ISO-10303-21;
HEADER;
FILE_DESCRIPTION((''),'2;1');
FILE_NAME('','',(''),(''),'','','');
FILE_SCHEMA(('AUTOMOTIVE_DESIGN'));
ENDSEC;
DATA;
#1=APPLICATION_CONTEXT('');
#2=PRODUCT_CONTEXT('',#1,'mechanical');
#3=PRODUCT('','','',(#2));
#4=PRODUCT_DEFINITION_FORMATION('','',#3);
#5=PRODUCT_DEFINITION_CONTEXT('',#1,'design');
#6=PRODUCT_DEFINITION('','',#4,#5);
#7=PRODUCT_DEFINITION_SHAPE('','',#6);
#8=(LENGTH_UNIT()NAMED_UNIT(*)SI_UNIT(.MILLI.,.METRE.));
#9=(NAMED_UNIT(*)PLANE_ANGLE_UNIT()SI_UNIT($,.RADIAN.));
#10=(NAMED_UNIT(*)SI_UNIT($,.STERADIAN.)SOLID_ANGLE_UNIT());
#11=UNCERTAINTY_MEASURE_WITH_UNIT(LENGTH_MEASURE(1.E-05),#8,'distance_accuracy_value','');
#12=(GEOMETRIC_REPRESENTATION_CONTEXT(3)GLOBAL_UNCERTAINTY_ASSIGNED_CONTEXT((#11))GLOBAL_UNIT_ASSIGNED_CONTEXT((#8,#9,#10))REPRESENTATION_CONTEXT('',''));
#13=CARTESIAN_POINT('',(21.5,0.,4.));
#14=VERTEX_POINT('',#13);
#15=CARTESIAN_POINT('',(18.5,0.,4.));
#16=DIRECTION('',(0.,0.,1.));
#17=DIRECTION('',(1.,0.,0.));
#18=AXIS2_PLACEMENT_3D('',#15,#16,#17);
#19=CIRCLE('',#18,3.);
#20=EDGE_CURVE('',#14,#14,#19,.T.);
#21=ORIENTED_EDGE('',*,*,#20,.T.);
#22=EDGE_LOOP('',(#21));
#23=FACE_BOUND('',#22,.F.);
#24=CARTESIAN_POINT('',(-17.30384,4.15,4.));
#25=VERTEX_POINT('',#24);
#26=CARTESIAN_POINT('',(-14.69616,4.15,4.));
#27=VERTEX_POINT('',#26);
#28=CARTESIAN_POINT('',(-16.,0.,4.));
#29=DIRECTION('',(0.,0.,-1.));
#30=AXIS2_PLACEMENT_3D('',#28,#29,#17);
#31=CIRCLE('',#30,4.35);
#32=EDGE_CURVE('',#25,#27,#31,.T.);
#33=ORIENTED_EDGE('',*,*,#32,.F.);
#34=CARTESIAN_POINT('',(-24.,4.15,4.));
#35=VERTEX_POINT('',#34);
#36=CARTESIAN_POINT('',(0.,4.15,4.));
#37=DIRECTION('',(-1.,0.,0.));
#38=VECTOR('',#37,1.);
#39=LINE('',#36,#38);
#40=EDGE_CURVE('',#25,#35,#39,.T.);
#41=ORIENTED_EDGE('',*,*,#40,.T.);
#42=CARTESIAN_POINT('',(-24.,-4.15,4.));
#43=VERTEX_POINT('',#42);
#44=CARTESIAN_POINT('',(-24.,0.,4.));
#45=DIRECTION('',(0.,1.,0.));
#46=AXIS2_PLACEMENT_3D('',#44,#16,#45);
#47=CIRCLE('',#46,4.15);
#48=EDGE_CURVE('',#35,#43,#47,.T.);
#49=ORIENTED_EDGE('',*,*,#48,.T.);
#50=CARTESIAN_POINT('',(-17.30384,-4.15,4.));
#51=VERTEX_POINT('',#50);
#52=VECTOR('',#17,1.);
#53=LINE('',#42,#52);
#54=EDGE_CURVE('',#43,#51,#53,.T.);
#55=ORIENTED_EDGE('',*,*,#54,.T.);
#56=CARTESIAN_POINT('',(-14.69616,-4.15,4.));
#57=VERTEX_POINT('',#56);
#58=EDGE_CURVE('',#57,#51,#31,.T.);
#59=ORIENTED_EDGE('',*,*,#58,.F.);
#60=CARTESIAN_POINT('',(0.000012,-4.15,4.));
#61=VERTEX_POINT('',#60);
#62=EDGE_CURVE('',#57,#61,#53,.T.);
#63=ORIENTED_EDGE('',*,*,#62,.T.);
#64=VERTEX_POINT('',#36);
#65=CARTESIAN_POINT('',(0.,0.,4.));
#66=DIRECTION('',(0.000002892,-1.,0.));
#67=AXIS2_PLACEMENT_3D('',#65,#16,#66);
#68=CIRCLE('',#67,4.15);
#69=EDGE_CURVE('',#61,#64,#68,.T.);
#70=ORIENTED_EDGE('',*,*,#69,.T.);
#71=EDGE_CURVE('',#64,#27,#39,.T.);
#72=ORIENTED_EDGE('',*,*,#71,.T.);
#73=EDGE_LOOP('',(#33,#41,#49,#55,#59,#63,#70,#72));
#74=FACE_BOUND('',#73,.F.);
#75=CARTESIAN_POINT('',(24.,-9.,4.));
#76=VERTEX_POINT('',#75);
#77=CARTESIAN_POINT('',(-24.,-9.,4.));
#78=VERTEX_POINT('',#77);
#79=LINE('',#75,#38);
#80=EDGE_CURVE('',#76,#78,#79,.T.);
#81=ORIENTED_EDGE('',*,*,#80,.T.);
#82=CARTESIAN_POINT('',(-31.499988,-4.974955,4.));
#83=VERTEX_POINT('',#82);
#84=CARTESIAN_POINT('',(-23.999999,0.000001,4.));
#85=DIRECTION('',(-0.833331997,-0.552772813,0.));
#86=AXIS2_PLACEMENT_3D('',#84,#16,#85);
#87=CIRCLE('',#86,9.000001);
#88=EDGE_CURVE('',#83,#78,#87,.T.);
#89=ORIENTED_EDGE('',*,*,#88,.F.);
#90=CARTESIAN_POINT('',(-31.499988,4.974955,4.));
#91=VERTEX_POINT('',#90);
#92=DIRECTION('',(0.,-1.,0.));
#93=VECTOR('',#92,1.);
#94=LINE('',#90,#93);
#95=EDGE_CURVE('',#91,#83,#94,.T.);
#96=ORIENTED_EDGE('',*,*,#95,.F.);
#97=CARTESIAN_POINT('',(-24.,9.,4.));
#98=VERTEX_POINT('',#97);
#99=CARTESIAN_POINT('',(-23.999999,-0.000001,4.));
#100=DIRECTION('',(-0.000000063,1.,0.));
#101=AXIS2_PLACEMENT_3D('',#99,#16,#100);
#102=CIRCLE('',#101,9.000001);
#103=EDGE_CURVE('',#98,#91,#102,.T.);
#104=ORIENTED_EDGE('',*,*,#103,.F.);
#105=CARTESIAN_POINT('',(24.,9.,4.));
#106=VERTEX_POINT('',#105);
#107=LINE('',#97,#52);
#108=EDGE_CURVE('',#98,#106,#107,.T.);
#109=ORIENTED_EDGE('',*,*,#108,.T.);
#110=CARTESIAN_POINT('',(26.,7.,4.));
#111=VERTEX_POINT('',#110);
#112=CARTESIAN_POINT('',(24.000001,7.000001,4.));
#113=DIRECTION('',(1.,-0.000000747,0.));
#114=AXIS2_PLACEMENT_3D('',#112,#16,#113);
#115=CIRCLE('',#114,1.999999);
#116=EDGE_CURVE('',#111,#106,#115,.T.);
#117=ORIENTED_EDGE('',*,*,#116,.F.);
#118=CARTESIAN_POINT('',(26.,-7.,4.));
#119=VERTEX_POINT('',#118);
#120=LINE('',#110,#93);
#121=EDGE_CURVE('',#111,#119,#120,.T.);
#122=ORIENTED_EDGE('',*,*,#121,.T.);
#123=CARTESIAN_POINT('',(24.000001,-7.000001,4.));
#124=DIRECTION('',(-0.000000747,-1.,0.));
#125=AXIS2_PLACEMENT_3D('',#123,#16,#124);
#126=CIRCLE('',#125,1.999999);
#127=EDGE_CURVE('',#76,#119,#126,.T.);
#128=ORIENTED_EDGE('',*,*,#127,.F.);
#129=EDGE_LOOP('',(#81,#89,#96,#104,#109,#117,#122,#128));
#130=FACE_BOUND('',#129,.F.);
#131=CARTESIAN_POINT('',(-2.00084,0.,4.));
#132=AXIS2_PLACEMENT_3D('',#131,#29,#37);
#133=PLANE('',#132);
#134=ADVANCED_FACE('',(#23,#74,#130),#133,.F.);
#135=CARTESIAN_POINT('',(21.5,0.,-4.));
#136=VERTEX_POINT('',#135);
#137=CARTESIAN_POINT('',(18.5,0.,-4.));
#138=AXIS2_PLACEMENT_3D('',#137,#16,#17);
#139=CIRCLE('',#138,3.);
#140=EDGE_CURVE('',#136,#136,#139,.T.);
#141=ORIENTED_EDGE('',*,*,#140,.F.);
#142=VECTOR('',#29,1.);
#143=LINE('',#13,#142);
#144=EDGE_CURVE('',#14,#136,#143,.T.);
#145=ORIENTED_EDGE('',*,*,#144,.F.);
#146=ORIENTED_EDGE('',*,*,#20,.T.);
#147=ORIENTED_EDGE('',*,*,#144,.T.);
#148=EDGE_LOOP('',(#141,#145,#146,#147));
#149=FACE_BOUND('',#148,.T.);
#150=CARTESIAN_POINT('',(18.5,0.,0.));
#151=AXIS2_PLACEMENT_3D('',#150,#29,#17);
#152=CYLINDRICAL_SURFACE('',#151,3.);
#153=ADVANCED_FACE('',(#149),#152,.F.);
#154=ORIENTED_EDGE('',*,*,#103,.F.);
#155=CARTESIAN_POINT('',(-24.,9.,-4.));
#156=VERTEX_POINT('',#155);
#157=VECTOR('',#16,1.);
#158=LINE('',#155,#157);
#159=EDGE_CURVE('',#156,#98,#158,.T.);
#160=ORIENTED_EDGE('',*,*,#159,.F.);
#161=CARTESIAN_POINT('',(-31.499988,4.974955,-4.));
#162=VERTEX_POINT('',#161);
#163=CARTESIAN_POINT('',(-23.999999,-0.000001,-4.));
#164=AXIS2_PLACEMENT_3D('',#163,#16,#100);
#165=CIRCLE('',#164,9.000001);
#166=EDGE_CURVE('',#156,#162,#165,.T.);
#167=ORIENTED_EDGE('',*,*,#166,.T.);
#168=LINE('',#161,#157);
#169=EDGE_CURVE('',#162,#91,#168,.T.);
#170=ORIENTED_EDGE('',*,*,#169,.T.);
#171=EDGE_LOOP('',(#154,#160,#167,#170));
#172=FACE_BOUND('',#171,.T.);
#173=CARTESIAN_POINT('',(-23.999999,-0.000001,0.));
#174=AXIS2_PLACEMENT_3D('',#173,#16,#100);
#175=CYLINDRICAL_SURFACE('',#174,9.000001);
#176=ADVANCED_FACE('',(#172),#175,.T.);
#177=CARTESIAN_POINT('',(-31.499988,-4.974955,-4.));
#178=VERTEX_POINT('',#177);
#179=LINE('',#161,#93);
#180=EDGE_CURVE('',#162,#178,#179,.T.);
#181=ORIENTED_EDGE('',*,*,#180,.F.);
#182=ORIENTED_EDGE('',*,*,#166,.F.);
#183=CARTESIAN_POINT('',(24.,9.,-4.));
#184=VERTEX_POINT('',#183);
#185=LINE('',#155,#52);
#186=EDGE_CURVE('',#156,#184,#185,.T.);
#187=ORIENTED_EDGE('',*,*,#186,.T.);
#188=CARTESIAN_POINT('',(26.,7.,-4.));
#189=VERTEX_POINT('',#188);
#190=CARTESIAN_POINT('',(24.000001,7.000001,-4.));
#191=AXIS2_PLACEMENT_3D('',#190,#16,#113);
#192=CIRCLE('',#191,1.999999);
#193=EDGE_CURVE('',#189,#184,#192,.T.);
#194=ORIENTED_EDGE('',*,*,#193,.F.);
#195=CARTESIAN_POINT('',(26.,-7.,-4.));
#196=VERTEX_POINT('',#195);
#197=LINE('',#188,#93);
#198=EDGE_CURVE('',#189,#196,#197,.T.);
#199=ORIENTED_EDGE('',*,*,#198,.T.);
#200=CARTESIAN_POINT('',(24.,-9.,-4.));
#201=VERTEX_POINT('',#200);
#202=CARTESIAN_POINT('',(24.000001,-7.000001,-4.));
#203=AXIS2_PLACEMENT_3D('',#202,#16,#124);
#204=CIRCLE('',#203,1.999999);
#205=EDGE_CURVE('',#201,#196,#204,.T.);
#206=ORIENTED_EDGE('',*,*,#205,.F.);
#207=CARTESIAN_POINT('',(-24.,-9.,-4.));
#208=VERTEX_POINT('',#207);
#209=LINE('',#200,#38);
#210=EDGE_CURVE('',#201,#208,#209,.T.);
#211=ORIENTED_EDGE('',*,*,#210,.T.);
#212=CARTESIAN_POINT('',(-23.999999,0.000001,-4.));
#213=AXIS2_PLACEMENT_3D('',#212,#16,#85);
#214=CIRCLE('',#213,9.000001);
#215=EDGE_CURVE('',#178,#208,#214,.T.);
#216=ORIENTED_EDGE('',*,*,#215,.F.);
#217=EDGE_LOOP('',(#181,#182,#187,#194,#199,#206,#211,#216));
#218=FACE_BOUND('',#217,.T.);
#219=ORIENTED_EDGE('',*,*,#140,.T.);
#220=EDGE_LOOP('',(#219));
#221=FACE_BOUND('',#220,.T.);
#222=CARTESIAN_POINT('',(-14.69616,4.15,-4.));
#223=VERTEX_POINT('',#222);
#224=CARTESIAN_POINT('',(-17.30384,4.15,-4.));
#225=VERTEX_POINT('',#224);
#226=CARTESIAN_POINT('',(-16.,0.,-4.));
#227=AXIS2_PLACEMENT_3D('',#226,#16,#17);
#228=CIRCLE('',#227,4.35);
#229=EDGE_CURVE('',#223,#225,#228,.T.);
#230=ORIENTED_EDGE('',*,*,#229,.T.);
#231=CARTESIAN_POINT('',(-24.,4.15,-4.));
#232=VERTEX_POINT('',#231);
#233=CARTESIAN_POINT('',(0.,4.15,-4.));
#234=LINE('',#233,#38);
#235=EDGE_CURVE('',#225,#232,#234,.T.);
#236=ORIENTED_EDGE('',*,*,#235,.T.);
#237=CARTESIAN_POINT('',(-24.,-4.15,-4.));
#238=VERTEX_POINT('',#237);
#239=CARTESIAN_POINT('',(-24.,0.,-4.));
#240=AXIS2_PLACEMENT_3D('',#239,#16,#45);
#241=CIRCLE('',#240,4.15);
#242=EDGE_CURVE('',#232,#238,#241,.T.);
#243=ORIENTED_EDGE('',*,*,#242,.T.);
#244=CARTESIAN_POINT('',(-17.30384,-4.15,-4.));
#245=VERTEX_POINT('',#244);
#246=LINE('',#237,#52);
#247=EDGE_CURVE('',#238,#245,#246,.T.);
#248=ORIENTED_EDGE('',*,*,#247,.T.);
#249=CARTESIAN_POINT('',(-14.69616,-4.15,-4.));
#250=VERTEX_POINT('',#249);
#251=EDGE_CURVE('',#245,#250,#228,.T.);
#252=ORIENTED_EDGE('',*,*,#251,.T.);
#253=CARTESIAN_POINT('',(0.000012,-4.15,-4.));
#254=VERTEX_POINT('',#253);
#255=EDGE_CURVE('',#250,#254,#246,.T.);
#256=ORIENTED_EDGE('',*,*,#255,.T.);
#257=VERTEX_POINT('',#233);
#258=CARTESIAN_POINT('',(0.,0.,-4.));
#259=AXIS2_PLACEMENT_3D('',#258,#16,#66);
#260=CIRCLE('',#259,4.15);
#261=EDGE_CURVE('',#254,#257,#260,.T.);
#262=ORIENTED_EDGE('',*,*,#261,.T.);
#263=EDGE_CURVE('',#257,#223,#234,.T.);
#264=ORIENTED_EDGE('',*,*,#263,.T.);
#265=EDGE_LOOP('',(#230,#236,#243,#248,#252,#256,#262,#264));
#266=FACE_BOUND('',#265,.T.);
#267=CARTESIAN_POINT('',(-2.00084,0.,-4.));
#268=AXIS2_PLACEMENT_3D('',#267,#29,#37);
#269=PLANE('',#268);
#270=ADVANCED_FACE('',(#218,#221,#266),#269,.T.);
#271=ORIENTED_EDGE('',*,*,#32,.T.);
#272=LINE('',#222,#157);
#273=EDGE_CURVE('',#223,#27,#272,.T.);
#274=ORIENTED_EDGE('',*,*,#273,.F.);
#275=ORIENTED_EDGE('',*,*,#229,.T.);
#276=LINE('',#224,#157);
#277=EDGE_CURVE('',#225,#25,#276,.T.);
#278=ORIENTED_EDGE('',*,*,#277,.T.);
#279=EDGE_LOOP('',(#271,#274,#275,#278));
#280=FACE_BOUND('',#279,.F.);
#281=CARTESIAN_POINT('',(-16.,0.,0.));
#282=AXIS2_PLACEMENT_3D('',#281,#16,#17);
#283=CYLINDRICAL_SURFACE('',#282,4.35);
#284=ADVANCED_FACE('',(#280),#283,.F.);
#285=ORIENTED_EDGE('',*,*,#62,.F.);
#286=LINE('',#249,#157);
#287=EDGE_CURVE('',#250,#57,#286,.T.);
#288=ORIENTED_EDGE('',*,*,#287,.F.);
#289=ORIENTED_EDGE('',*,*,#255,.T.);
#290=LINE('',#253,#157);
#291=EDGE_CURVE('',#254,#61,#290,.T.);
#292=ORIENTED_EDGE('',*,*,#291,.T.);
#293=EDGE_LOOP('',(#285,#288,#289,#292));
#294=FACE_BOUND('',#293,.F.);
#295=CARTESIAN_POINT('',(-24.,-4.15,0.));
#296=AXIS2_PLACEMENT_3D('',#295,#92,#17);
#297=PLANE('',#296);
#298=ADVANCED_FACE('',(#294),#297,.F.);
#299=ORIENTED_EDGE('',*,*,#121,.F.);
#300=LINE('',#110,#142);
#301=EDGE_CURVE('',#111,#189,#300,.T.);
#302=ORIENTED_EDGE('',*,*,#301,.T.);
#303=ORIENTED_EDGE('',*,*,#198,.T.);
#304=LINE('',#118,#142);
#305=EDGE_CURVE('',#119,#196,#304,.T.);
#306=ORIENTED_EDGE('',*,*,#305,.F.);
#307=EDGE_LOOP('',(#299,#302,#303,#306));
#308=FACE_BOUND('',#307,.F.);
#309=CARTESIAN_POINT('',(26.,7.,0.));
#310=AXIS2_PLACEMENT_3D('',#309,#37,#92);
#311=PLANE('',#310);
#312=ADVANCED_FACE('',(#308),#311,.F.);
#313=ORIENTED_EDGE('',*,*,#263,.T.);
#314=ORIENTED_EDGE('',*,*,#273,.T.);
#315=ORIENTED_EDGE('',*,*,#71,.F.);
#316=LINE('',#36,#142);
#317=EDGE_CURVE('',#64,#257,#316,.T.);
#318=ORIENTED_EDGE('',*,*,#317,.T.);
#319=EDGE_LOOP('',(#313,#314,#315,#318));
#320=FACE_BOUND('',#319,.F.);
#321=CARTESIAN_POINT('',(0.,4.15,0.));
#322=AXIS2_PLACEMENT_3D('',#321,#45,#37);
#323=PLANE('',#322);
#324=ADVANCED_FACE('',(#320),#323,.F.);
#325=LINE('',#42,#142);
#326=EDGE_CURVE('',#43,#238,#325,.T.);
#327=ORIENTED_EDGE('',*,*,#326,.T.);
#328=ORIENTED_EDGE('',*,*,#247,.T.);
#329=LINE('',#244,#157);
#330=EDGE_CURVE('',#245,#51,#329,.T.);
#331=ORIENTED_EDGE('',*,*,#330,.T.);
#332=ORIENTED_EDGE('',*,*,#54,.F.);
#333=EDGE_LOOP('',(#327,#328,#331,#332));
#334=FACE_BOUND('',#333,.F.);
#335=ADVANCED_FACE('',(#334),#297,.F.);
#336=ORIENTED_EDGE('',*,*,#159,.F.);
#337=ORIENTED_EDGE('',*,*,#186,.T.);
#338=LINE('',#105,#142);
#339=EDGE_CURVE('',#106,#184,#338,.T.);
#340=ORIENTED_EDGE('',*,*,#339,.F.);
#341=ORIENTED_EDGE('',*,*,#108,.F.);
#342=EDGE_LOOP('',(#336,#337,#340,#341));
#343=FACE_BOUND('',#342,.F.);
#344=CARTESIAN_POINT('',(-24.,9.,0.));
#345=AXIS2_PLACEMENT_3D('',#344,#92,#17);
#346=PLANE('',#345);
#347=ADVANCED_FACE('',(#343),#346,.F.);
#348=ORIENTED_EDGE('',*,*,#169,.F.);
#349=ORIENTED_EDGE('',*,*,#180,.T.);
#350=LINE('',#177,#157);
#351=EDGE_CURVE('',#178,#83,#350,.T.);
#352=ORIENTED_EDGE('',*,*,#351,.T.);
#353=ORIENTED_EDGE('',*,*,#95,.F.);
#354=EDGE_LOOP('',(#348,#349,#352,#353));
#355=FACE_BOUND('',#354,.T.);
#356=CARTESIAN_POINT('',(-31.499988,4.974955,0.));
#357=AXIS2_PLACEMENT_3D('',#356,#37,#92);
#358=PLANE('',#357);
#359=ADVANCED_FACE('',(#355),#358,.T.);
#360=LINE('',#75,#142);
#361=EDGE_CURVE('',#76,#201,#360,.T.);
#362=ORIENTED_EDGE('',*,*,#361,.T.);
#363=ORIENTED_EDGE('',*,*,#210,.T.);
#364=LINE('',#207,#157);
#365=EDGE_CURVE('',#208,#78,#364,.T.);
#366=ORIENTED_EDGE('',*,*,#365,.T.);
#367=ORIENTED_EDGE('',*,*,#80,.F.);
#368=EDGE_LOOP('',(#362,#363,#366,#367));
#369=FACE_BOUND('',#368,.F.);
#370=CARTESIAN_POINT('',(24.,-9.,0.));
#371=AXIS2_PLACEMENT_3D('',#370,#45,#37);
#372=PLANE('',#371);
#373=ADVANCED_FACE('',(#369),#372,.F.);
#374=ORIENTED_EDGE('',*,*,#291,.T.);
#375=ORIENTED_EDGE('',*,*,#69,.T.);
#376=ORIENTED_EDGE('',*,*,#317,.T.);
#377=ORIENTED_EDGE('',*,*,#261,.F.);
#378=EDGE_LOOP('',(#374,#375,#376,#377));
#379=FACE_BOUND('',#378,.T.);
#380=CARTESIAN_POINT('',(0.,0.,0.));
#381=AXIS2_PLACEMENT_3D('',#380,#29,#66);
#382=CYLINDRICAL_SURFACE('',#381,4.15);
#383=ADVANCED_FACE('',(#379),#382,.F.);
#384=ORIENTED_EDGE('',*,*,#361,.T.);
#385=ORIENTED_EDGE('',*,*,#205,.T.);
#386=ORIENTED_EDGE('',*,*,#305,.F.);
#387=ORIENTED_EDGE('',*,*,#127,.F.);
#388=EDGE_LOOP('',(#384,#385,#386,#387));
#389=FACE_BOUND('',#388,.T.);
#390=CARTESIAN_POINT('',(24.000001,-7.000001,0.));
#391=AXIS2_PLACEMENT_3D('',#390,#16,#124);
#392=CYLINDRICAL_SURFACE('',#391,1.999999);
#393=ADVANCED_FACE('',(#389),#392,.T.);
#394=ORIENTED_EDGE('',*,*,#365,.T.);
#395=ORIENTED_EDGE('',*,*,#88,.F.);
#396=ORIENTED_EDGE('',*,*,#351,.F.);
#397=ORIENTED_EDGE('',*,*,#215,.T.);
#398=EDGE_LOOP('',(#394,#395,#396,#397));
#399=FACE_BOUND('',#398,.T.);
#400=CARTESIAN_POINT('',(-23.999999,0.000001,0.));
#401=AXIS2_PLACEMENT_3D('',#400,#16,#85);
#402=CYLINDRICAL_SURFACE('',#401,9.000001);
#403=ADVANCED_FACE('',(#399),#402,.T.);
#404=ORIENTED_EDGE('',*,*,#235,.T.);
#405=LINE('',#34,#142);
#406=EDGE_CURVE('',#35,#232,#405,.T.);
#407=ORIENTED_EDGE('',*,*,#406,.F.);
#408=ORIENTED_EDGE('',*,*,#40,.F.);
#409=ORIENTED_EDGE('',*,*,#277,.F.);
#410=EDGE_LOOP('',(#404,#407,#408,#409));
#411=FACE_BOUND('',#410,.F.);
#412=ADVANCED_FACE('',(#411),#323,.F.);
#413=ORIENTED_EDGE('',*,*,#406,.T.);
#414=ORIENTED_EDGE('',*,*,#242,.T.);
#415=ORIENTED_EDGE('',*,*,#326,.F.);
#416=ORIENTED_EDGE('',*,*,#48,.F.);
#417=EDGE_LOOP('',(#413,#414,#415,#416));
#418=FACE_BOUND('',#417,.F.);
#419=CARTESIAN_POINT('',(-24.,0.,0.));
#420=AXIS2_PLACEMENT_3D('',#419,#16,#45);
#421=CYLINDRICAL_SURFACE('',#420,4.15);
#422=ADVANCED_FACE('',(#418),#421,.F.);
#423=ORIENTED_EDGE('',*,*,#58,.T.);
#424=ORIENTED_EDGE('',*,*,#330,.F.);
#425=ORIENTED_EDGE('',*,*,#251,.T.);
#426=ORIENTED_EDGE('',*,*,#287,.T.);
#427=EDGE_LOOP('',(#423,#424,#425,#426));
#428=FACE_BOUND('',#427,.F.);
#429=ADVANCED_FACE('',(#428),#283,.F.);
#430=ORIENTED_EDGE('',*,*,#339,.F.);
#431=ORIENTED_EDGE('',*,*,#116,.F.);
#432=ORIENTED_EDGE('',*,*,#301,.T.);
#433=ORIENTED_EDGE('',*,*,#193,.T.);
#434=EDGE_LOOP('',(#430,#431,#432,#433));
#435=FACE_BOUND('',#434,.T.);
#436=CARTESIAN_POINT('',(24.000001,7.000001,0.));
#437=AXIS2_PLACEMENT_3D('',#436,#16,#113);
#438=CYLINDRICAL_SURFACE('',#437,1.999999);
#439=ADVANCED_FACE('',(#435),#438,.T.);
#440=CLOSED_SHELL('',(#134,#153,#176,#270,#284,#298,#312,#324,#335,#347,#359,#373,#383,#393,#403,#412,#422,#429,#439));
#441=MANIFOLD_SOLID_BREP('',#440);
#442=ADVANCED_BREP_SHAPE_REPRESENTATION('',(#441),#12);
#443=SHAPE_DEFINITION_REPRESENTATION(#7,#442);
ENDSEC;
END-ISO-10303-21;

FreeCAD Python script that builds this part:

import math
import FreeCAD as App
import Part
import Sketcher
Q = App.Units.Quantity

doc = App.newDocument("Part")
body = doc.addObject("PartDesign::Body", "Body")

# Sketch on XY plane
sketch1 = body.newObject("Sketcher::SketchObject", "Sketch")
sketch1.AttachmentSupport = (doc.getObject("XY_Plane"), [""])
sketch1.MapMode = "FlatFace"
sketch1.addGeometry([
    Part.LineSegment(App.Vector(24, 9, 0), App.Vector(-24, 9, 0)),  # 0
    Part.ArcOfCircle(Part.Circle(App.Vector(-23.999999, -0.000001, 0), App.Vector(0, 0, 1), 9.000001), math.radians(90.000004), math.radians(146.442552)),  # 1
    Part.LineSegment(App.Vector(-31.499988, 4.974955, 0), App.Vector(-31.499988, -4.974955, 0)),  # 2
    Part.ArcOfCircle(Part.Circle(App.Vector(-23.999999, 0.000001, 0), App.Vector(0, 0, 1), 9.000001), math.radians(-146.442552), math.radians(-90.000004)),  # 3
    Part.LineSegment(App.Vector(-24, -9, 0), App.Vector(24, -9, 0)),  # 4
    Part.ArcOfCircle(Part.Circle(App.Vector(24.000001, -7.000001, 0), App.Vector(0, 0, 1), 1.999999), math.radians(-90.000043), math.radians(0.000043)),  # 5
    Part.LineSegment(App.Vector(26, -7, 0), App.Vector(26, 7, 0)),  # 6
    Part.ArcOfCircle(Part.Circle(App.Vector(24.000001, 7.000001, 0), App.Vector(0, 0, 1), 1.999999), math.radians(-0.000043), math.radians(90.000043)),  # 7
    Part.Circle(App.Vector(18.5, 0, 0), App.Vector(0, 0, 1), 3),  # 8
    Part.LineSegment(App.Vector(0.000012, -4.15, 0), App.Vector(-24, -4.15, 0)),  # 9
    Part.ArcOfCircle(Part.Circle(App.Vector(-24, 0, 0), App.Vector(0, 0, 1), 4.15), math.radians(90), math.radians(270)),  # 10
    Part.LineSegment(App.Vector(-24, 4.15, 0), App.Vector(0, 4.15, 0)),  # 11
    Part.ArcOfCircle(Part.Circle(App.Vector(0, 0, 0), App.Vector(0, 0, 1), 4.15), math.radians(-89.999834), math.radians(90)),  # 12
], False)
sketch1.addConstraint([
    Sketcher.Constraint("Tangent", 0, 2, 1, 1),
    Sketcher.Constraint("Coincident", 1, 2, 2, 1),
    Sketcher.Constraint("Coincident", 2, 2, 3, 1),
    Sketcher.Constraint("Tangent", 3, 2, 4, 1),
    Sketcher.Constraint("Tangent", 4, 2, 5, 1),
    Sketcher.Constraint("Tangent", 5, 2, 6, 1),
    Sketcher.Constraint("Tangent", 6, 2, 7, 1),
    Sketcher.Constraint("Tangent", 7, 2, 0, 1),
    Sketcher.Constraint("Tangent", 9, 2, 10, 2),
    Sketcher.Constraint("Tangent", 10, 1, 11, 1),
    Sketcher.Constraint("Tangent", 11, 2, 12, 2),
    Sketcher.Constraint("Coincident", 12, 1, 9, 1),
    Sketcher.Constraint("Horizontal", 0),
    Sketcher.Constraint("Vertical", 2),
    Sketcher.Constraint("Horizontal", 4),
    Sketcher.Constraint("Vertical", 6),
    Sketcher.Constraint("Horizontal", 9),
    Sketcher.Constraint("Horizontal", 11),
    Sketcher.Constraint("Coincident", 12, 3, -1, 1),
    Sketcher.Constraint("Coincident", 3, 3, 1, 3),
    Sketcher.Constraint("Coincident", 10, 3, 1, 3),
    Sketcher.Constraint("Equal", 1, 3),
    Sketcher.Constraint("Equal", 5, 7),
    Sketcher.Constraint("PointOnObject", 8, 3, -1),
    Sketcher.Constraint("Diameter", 8, Q("6 mm")),
    Sketcher.Constraint("Radius", 1, Q("9.000001 mm")),
    Sketcher.Constraint("Radius", 5, Q("1.999999 mm")),
    Sketcher.Constraint("DistanceX", 0, 2, 0, 1, Q("48 mm")),
    Sketcher.Constraint("DistanceX", 11, 1, 11, 2, Q("24 mm")),
    Sketcher.Constraint("Radius", 10, Q("4.15 mm")),
    Sketcher.Constraint("DistanceX", -1, 1, 8, 3, Q("18.5 mm")),
    Sketcher.Constraint("DistanceY", 2, 2, 2, 1, Q("9.94991 mm")),
    Sketcher.Constraint("DistanceX", 9, 2, 9, 1, Q("24.000012 mm")),
])
pad1 = body.newObject("PartDesign::Pad", "Pad")
pad1.Profile = sketch1
pad1.Length = 8
pad1.Midplane = True

# Sketch on XY plane
sketch2 = body.newObject("Sketcher::SketchObject", "Sketch001")
sketch2.AttachmentSupport = (doc.getObject("XY_Plane"), [""])
sketch2.MapMode = "FlatFace"
sketch2.addGeometry(Part.Circle(App.Vector(-16, 0, 0), App.Vector(0, 0, 1), 4.35), False)
sketch2.addConstraint([
    Sketcher.Constraint("PointOnObject", 0, 3, -1),
    Sketcher.Constraint("Diameter", 0, Q("8.7 mm")),
    Sketcher.Constraint("DistanceX", 0, 3, -1, 1, Q("16 mm")),
])
pocket1 = body.newObject("PartDesign::Pocket", "Pocket")
pocket1.Profile = sketch2
pocket1.Type = "ThroughAll"
pocket1.Midplane = True

doc.recompute()
